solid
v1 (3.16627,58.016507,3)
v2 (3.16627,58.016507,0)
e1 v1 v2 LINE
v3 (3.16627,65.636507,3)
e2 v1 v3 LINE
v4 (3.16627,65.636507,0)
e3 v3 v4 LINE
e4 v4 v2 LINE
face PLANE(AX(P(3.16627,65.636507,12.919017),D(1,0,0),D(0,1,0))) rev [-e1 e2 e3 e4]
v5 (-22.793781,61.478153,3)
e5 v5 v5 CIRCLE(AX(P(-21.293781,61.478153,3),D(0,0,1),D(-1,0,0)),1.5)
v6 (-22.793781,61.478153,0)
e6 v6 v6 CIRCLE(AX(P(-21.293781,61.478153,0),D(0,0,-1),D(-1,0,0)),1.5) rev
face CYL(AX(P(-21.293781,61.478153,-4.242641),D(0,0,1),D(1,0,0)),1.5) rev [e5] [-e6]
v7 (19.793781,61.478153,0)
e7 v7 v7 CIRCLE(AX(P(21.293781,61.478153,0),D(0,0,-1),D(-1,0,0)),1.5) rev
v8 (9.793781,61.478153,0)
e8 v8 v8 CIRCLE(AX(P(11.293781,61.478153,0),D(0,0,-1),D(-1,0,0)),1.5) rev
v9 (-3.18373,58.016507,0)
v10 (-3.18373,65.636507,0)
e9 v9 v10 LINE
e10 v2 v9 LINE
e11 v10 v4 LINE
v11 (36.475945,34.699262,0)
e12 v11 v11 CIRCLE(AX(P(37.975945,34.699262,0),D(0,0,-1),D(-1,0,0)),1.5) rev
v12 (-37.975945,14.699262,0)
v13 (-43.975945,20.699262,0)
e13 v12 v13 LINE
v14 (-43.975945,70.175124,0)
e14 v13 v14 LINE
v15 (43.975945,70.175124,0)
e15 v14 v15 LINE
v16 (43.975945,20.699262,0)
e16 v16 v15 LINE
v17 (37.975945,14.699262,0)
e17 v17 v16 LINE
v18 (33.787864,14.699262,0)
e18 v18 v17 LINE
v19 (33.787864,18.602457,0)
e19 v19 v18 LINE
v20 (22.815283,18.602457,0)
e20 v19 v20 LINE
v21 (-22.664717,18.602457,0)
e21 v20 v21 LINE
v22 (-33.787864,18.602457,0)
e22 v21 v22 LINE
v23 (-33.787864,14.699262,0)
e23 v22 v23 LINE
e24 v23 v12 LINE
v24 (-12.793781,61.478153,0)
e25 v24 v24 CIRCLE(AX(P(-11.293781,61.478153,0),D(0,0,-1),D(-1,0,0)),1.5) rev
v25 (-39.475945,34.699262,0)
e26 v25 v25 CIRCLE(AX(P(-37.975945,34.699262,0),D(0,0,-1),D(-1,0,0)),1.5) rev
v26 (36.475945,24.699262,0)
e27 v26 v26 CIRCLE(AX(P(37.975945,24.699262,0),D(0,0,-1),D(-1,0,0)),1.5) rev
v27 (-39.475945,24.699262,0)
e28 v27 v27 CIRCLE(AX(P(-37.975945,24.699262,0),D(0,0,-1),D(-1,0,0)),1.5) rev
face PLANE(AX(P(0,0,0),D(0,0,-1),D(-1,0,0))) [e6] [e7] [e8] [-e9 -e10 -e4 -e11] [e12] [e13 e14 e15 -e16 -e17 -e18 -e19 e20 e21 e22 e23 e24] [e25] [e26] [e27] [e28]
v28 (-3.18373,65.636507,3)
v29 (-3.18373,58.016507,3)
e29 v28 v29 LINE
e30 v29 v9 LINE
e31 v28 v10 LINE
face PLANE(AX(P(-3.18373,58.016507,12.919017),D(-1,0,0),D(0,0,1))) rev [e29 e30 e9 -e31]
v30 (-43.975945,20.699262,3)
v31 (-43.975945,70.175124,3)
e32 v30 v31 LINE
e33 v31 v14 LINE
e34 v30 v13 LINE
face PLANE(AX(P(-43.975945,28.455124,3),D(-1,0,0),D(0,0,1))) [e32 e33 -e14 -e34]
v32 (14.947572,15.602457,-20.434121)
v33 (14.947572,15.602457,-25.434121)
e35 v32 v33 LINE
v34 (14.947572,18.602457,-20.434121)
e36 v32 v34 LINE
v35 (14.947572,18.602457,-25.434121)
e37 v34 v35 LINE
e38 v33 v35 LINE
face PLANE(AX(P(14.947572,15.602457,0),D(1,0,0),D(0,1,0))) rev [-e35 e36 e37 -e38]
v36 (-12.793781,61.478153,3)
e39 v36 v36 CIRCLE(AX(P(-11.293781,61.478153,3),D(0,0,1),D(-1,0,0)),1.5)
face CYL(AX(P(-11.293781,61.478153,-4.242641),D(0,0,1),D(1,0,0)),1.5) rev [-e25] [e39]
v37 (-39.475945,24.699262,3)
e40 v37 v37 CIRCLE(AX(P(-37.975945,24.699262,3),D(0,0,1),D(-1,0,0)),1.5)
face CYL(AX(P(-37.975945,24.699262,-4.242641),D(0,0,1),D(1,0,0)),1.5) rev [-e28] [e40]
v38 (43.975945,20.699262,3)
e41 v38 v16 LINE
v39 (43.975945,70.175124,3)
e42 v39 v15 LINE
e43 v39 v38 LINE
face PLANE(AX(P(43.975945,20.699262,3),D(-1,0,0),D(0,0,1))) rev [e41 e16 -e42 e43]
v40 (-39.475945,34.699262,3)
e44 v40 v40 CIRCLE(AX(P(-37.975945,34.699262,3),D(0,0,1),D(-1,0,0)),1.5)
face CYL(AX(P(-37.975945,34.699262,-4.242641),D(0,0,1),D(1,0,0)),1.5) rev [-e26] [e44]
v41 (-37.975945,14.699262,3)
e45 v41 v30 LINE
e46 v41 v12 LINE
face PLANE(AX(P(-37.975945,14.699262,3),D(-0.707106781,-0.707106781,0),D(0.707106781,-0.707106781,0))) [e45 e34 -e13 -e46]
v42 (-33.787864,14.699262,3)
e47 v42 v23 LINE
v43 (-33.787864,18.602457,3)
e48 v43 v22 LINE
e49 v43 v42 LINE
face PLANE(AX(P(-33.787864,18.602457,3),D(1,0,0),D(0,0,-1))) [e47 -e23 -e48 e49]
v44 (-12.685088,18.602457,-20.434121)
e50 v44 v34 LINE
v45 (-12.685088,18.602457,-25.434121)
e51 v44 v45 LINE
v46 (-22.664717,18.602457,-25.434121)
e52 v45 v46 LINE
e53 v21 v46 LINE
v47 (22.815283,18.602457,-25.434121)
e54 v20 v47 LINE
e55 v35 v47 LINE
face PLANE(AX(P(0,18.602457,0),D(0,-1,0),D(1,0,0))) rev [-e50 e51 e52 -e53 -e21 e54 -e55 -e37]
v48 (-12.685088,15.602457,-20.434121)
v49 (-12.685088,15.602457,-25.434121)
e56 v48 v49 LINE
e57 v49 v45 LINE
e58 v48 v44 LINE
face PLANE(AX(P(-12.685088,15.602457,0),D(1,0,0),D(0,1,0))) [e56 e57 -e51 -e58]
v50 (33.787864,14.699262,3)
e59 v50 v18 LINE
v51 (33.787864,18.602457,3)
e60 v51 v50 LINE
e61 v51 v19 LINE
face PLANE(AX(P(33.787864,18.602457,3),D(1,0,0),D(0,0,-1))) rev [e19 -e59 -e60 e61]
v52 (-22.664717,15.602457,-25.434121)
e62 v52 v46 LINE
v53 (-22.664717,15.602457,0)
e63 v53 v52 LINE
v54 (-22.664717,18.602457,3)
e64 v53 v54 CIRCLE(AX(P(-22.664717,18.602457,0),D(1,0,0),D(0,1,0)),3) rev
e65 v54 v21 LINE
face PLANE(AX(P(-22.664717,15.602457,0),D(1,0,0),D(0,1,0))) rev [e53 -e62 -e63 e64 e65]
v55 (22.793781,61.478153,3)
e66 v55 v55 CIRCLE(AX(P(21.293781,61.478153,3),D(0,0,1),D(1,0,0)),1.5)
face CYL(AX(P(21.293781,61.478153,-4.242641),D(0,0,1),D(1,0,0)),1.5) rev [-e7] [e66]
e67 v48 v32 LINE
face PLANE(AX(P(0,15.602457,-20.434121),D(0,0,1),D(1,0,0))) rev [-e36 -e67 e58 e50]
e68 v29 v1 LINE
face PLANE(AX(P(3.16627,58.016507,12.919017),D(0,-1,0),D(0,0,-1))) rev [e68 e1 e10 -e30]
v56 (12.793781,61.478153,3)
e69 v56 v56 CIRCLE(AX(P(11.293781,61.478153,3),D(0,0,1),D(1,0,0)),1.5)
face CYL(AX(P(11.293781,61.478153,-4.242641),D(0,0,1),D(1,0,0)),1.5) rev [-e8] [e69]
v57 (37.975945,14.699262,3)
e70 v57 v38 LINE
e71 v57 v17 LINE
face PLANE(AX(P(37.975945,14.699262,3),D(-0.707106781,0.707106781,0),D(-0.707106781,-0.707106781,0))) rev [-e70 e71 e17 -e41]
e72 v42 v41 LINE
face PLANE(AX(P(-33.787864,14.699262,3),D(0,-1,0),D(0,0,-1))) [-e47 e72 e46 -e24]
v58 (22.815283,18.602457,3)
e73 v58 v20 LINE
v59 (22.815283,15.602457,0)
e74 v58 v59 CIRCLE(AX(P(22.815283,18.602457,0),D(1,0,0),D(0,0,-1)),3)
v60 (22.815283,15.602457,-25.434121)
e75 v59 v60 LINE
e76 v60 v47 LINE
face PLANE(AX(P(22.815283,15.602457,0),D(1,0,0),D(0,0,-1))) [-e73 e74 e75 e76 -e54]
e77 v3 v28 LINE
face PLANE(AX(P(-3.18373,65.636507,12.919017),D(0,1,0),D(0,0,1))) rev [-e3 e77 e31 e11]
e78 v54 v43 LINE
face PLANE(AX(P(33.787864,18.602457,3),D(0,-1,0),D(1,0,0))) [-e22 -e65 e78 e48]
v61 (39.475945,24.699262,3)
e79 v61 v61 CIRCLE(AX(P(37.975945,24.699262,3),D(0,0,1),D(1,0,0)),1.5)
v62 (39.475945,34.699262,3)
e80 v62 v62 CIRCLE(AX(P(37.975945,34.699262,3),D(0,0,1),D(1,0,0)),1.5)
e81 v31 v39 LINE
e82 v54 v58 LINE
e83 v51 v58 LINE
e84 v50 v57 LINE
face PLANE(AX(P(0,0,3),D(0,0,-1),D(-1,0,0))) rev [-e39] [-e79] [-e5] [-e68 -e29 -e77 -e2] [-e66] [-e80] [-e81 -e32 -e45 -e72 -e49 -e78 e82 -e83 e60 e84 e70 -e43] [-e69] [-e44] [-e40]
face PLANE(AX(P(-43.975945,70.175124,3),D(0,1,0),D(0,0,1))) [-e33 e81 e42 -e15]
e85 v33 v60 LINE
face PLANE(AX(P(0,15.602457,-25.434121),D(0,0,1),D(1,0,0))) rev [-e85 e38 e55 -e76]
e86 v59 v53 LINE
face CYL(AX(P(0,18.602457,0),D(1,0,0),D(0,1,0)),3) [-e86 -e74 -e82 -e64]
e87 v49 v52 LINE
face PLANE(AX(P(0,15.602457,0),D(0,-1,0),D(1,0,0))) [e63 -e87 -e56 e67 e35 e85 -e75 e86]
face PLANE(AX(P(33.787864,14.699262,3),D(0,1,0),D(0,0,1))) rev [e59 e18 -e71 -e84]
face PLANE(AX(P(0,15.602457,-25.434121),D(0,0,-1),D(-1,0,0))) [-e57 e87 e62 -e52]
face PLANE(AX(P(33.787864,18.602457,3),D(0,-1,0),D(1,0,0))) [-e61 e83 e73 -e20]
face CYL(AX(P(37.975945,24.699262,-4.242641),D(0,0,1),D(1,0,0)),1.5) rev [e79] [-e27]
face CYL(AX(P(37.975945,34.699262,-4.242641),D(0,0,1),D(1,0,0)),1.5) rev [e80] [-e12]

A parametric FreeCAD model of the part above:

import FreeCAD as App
import Part
import Sketcher
Q = App.Units.Quantity


def edges_at(feature, points):
    """Names of the edges that pass closest to the given points."""
    edges = feature.Shape.Edges
    near = lambda p: min(range(len(edges)), key=lambda i: edges[i].distToShape(Part.Vertex(*p))[0])
    return sorted({f"Edge{near(p) + 1}" for p in points})


def add_polygon(sketch, points):
    """Adds a closed chain of lines whose ends are joined by coincident constraints."""
    first, n = sketch.GeometryCount, len(points)
    for a, b in zip(points, points[1:] + points[:1]):
        sketch.addGeometry(Part.LineSegment(App.Vector(*a, 0), App.Vector(*b, 0)), False)
    for i in range(n):
        sketch.addConstraint(Sketcher.Constraint("Coincident", first + i, 2, first + (i + 1) % n, 1))

doc = App.newDocument("Part")
body = doc.addObject("PartDesign::Body", "Body")

# Sketch on XY plane
sketch1 = body.newObject("Sketcher::SketchObject", "Sketch")
sketch1.AttachmentSupport = (doc.getObject("XY_Plane"), [""])
sketch1.MapMode = "FlatFace"
add_polygon(sketch1, [(-33.787864, 14.699262), (-33.787864, 18.602457), (33.787864, 18.602457), (33.787864, 14.699262), (37.975945, 14.699262), (43.975945, 20.699262), (43.975945, 70.175124), (-43.975945, 70.175124), (-43.975945, 20.699262), (-37.975945, 14.699262)])  # lines 0-9
sketch1.addConstraint([
    Sketcher.Constraint("Vertical", 0),
    Sketcher.Constraint("Horizontal", 1),
    Sketcher.Constraint("Vertical", 2),
    Sketcher.Constraint("Horizontal", 3),
    Sketcher.Constraint("Vertical", 5),
    Sketcher.Constraint("Horizontal", 6),
    Sketcher.Constraint("Vertical", 7),
    Sketcher.Constraint("Horizontal", 9),
    Sketcher.Constraint("Symmetric", 4, 2, 7, 2, -2),
    Sketcher.Constraint("Symmetric", 3, 2, 8, 2, -2),
    Sketcher.Constraint("Perpendicular", 4, 8),
    Sketcher.Constraint("Equal", 3, 9),
    Sketcher.Constraint("DistanceX", 3, 2, 4, 2, Q("6 mm")),
    Sketcher.Constraint("DistanceX", 1, 1, 1, 2, Q("67.575729 mm")),
    Sketcher.Constraint("DistanceX", 3, 1, 3, 2, Q("4.188081 mm")),
    Sketcher.Constraint("DistanceY", 0, 1, 0, 2, Q("3.903195 mm")),
    Sketcher.Constraint("DistanceY", 5, 1, 5, 2, Q("49.475862 mm")),
    Sketcher.Constraint("DistanceY", -1, 1, 0, 2, Q("18.602457 mm")),
])
pad1 = body.newObject("PartDesign::Pad", "Pad")
pad1.Profile = sketch1
pad1.Length = 3

# Sketch on XY plane
sketch2 = body.newObject("Sketcher::SketchObject", "Sketch001")
sketch2.AttachmentSupport = (doc.getObject("XY_Plane"), [""])
sketch2.MapMode = "FlatFace"
sketch2.AttachmentOffset = App.Placement(App.Vector(0, 0, 3), App.Rotation())
sketch2.addGeometry([
    Part.Circle(App.Vector(37.975945, 24.699262, 0), App.Vector(0, 0, 1), 1.5),  # 0
    Part.Circle(App.Vector(37.975945, 34.699262, 0), App.Vector(0, 0, 1), 1.5),  # 1
    Part.Circle(App.Vector(-37.975945, 24.699262, 0), App.Vector(0, 0, 1), 1.5),  # 2
    Part.Circle(App.Vector(-37.975945, 34.699262, 0), App.Vector(0, 0, 1), 1.5),  # 3
    Part.Circle(App.Vector(21.293781, 61.478153, 0), App.Vector(0, 0, 1), 1.5),  # 4
    Part.Circle(App.Vector(11.293781, 61.478153, 0), App.Vector(0, 0, 1), 1.5),  # 5
    Part.Circle(App.Vector(-11.293781, 61.478153, 0), App.Vector(0, 0, 1), 1.5),  # 6
    Part.Circle(App.Vector(-21.293781, 61.478153, 0), App.Vector(0, 0, 1), 1.5),  # 7
], False)
sketch2.addConstraint([
    Sketcher.Constraint("Equal", 0, 1),
    Sketcher.Constraint("Equal", 1, 2),
    Sketcher.Constraint("Equal", 2, 3),
    Sketcher.Constraint("Equal", 3, 4),
    Sketcher.Constraint("Equal", 4, 5),
    Sketcher.Constraint("Equal", 5, 6),
    Sketcher.Constraint("Equal", 6, 7),
    Sketcher.Constraint("Symmetric", 0, 3, 2, 3, -2),
    Sketcher.Constraint("Symmetric", 1, 3, 3, 3, -2),
    Sketcher.Constraint("Symmetric", 5, 3, 6, 3, -2),
    Sketcher.Constraint("Symmetric", 4, 3, 7, 3, -2),
    Sketcher.Constraint("Horizontal", 4, 3, 5, 3),
    Sketcher.Constraint("Vertical", 0, 3, 1, 3),
    Sketcher.Constraint("Diameter", 0, Q("3 mm")),
    Sketcher.Constraint("DistanceY", 0, 3, 1, 3, Q("10 mm")),
    Sketcher.Constraint("DistanceX", 5, 3, 4, 3, Q("10 mm")),
    Sketcher.Constraint("DistanceX", -1, 1, 4, 3, Q("21.293781 mm")),
    Sketcher.Constraint("DistanceX", 2, 3, 0, 3, Q("75.95189 mm")),
    Sketcher.Constraint("DistanceY", 1, 3, 4, 3, Q("26.77889 mm")),
    Sketcher.Constraint("DistanceY", -1, 1, 0, 3, Q("24.699262 mm")),
])
pocket1 = body.newObject("PartDesign::Pocket", "Pocket")
pocket1.Profile = sketch2
pocket1.Length = 3

# Sketch on XY plane
sketch3 = body.newObject("Sketcher::SketchObject", "Sketch002")
sketch3.AttachmentSupport = (doc.getObject("XY_Plane"), [""])
sketch3.MapMode = "FlatFace"
add_polygon(sketch3, [(3.16627, 65.636507), (3.16627, 58.016507), (-3.18373, 58.016507), (-3.18373, 65.636507)])  # lines 0-3
sketch3.addConstraint([
    Sketcher.Constraint("Vertical", 0),
    Sketcher.Constraint("Horizontal", 1),
    Sketcher.Constraint("Vertical", 2),
    Sketcher.Constraint("Horizontal", 3),
    Sketcher.Constraint("DistanceX", 1, 2, 1, 1, Q("6.35 mm")),
    Sketcher.Constraint("DistanceY", 0, 2, 0, 1, Q("7.62 mm")),
    Sketcher.Constraint("DistanceX", -1, 1, 0, 2, Q("3.16627 mm")),
    Sketcher.Constraint("DistanceY", -1, 1, 0, 2, Q("58.016507 mm")),
])
pocket2 = body.newObject("PartDesign::Pocket", "Pocket001")
pocket2.Profile = sketch3
pocket2.Length = 3
pocket2.Reversed = True

# Sketch on XZ plane
sketch4 = body.newObject("Sketcher::SketchObject", "Sketch003")
sketch4.AttachmentSupport = (doc.getObject("XZ_Plane"), [""])
sketch4.MapMode = "FlatFace"
sketch4.AttachmentOffset = App.Placement(App.Vector(0, 0, -18.602457), App.Rotation())
add_polygon(sketch4, [(-12.685088, -20.434121), (14.947572, -20.434121), (14.947572, -25.434121), (22.815283, -25.434121), (22.815283, 3), (-22.664717, 3), (-22.664717, -25.434121), (-12.685088, -25.434121)])  # lines 0-7
sketch4.addConstraint([
    Sketcher.Constraint("Horizontal", 0),
    Sketcher.Constraint("Vertical", 1),
    Sketcher.Constraint("Horizontal", 2),
    Sketcher.Constraint("Vertical", 3),
    Sketcher.Constraint("Horizontal", 4),
    Sketcher.Constraint("Vertical", 5),
    Sketcher.Constraint("Horizontal", 6),
    Sketcher.Constraint("Vertical", 7),
    Sketcher.Constraint("Horizontal", 2, 2, 5, 2),
    Sketcher.Constraint("DistanceY", 1, 2, 1, 1, Q("5 mm")),
    Sketcher.Constraint("DistanceY", -1, 1, 3, 2, Q("3 mm")),
    Sketcher.Constraint("DistanceX", 4, 2, 4, 1, Q("45.48 mm")),
    Sketcher.Constraint("DistanceX", 0, 1, 0, 2, Q("27.63266 mm")),
    Sketcher.Constraint("DistanceX", 2, 1, 2, 2, Q("7.867711 mm")),
    Sketcher.Constraint("DistanceY", 3, 1, 3, 2, Q("28.434121 mm")),
    Sketcher.Constraint("DistanceX", -1, 1, 0, 2, Q("14.947572 mm")),
])
pad2 = body.newObject("PartDesign::Pad", "Pad001")
pad2.Profile = sketch4
pad2.Length = 3
doc.recompute()

fillet = body.newObject("PartDesign::Fillet", "Fillet")
fillet.Base = (pad2, edges_at(pad2, [(0.075, 15.602, 3)]))
fillet.Radius = 3

doc.recompute()
